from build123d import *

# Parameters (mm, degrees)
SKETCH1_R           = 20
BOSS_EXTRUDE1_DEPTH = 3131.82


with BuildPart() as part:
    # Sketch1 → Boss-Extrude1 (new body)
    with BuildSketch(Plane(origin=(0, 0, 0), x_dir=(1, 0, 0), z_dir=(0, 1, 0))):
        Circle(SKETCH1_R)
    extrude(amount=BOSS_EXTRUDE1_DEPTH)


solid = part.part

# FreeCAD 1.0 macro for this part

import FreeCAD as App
import Part
import Sketcher

doc = App.newDocument("Part")
body = doc.addObject("PartDesign::Body", "Body")

# Sketch on XZ plane
sketch1 = body.newObject("Sketcher::SketchObject", "Sketch")
sketch1.AttachmentSupport = (doc.getObject("XZ_Plane"), [""])
sketch1.MapMode = "FlatFace"
sketch1.addGeometry(Part.Circle(App.Vector(0, 0, 0), App.Vector(0, 0, 1), 20), False)
sketch1.addConstraint([
    Sketcher.Constraint("Coincident", 0, 3, -1, 1),
    Sketcher.Constraint("Diameter", 0, 40.0),
])
pad1 = body.newObject("PartDesign::Pad", "Pad")
pad1.Profile = sketch1
pad1.Length = 3131.82
pad1.Reversed = True

doc.recompute()
